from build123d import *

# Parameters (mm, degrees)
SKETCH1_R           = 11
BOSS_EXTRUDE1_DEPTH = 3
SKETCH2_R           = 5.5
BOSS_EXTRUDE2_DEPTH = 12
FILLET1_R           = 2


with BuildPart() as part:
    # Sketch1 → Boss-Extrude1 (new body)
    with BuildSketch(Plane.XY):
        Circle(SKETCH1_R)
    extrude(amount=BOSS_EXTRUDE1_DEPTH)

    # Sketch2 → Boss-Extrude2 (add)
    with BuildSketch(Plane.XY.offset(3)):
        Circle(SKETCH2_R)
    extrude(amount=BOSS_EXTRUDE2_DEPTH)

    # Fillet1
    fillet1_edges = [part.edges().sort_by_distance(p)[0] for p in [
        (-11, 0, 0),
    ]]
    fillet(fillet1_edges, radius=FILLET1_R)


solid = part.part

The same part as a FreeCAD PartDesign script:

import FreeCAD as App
import Part
import Sketcher

V = App.Vector
Q = App.Units.Quantity


def edges_at(feature, points):
    """Names of the edges that pass closest to the given points."""
    edges = feature.Shape.Edges
    near = lambda p: min(range(len(edges)), key=lambda i: edges[i].distToShape(Part.Vertex(*p))[0])
    return sorted({f"Edge{near(p) + 1}" for p in points})

doc = App.newDocument("Part")
params = doc.addObject("Spreadsheet::Sheet", "Params")
for row, (alias, value) in enumerate([
    ("sketch1_diameter", "22 mm"),
    ("pad1_length", "3 mm"),
    ("sketch2_diameter", "11 mm"),
    ("pad2_length", "12 mm"),
    ("fillet_radius", "2 mm"),
], start=1):
    params.set(f"A{row}", alias)
    params.set(f"B{row}", "=" + value)
    params.setAlias(f"B{row}", alias)

body = doc.addObject("PartDesign::Body", "Body")

sketch1 = body.newObject("Sketcher::SketchObject", "Sketch")
sketch1.AttachmentSupport = (doc.getObject("XY_Plane"), [""])
sketch1.MapMode = "FlatFace"
sketch1.addGeometry(Part.Circle(V(0, 0, 0), V(0, 0, 1), 11), False)
sketch1.addConstraint([
    Sketcher.Constraint("Coincident", 0, 3, -1, 1),
    Sketcher.Constraint("Diameter", 0, Q("22 mm")),
])
sketch1.setExpression("Constraints[1]", "Params.sketch1_diameter")
pad1 = body.newObject("PartDesign::Pad", "Pad")
pad1.Profile = sketch1
pad1.setExpression("Length", "Params.pad1_length")

sketch2 = body.newObject("Sketcher::SketchObject", "Sketch001")
sketch2.AttachmentSupport = (doc.getObject("XY_Plane"), [""])
sketch2.MapMode = "FlatFace"
sketch2.AttachmentOffset = App.Placement(V(0, 0, 3), App.Rotation())
sketch2.addGeometry(Part.Circle(V(0, 0, 0), V(0, 0, 1), 6), False)
sketch2.addConstraint([
    Sketcher.Constraint("Coincident", 0, 3, -1, 1),
    Sketcher.Constraint("Diameter", 0, Q("11 mm")),
])
sketch2.setExpression("Constraints[1]", "Params.sketch2_diameter")
pad2 = body.newObject("PartDesign::Pad", "Pad001")
pad2.Profile = sketch2
pad2.setExpression("Length", "Params.pad2_length")
doc.recompute()

fillet = body.newObject("PartDesign::Fillet", "Fillet")
fillet.Base = (pad2, edges_at(pad2, [(-11, 0, 0)]))
fillet.setExpression("Radius", "Params.fillet_radius")

doc.recompute()
